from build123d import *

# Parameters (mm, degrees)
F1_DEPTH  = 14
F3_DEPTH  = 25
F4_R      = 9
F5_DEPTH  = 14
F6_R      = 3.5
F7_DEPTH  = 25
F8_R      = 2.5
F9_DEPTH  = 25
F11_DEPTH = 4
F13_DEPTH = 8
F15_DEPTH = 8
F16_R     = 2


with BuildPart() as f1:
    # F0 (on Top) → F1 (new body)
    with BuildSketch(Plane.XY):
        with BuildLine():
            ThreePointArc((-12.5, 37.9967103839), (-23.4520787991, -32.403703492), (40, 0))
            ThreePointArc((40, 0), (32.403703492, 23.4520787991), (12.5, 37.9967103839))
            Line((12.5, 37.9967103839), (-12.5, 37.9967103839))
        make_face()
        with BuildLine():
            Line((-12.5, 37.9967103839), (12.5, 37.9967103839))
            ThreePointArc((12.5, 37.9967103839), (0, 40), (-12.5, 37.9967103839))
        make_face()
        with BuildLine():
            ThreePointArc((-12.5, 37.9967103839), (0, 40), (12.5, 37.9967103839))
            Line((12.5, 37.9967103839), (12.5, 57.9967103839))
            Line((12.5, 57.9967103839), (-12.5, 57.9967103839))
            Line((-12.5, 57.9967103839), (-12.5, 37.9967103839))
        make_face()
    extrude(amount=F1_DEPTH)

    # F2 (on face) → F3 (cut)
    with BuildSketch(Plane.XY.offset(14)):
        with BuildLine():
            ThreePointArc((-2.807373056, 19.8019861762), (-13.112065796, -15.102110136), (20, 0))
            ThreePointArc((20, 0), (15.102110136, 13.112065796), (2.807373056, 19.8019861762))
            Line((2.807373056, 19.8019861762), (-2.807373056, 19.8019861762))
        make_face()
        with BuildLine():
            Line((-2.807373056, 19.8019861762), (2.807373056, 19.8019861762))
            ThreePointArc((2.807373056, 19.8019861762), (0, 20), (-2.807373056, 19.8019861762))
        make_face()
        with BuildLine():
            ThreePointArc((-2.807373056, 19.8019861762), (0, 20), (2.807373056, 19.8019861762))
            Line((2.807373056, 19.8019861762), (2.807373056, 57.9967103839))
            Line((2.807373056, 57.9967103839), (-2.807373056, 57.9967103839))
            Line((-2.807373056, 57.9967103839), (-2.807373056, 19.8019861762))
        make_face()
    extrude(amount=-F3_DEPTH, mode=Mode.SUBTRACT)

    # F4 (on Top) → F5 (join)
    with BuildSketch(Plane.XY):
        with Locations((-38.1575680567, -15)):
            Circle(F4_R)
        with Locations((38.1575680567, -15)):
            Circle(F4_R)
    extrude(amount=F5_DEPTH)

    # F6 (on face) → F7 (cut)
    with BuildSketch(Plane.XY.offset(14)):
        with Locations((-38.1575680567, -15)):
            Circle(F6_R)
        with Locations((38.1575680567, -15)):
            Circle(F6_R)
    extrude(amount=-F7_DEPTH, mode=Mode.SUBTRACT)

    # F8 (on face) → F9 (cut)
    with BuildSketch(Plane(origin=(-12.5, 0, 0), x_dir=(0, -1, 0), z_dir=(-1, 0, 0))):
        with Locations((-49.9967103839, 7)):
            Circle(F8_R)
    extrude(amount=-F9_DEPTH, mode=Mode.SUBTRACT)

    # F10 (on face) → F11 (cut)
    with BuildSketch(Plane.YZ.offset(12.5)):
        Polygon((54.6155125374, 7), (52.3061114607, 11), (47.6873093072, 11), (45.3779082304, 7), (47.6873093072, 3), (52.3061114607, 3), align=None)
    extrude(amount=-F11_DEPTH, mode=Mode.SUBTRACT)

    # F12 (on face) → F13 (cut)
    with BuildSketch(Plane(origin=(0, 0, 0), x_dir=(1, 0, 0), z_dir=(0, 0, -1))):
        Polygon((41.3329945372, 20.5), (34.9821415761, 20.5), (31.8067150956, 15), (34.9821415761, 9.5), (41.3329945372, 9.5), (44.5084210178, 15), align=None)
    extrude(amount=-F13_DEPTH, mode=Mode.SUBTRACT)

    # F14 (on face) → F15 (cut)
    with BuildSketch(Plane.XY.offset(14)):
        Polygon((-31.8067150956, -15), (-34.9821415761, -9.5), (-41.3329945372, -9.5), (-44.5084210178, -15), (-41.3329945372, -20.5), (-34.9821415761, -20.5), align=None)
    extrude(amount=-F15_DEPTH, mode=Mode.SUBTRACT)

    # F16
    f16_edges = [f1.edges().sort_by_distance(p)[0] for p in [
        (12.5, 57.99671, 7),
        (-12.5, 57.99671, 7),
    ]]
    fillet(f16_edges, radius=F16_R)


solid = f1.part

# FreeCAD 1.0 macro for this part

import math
import FreeCAD as App
import Part
import Sketcher
from FreeCAD import Vector
Q = App.Units.Quantity


def edges_at(feature, points):
    """Names of the edges that pass closest to the given points."""
    edges = feature.Shape.Edges
    near = lambda p: min(range(len(edges)), key=lambda i: edges[i].distToShape(Part.Vertex(*p))[0])
    return sorted({f"Edge{near(p) + 1}" for p in points})

doc = App.newDocument("Part")
body = doc.addObject("PartDesign::Body", "Body")

sketch1 = doc.addObject("Sketcher::SketchObject", "Sketch")
body.addObject(sketch1)
sketch1.AttachmentSupport = (doc.XY_Plane, [""])
sketch1.MapMode = "FlatFace"
sketch1.addGeometry(Part.ArcOfCircle(Part.Circle(Vector(0, 0, 0), Vector(0, 0, 1), 40), math.radians(108.209957), math.radians(360)), False)
sketch1.addGeometry(Part.ArcOfCircle(Part.Circle(Vector(0, 0, 0), Vector(0, 0, 1), 40), math.radians(0), math.radians(71.790043)), False)
sketch1.addGeometry(Part.LineSegment(Vector(12.5, 37.99671, 0), Vector(12.5, 57.99671, 0)), False)
sketch1.addGeometry(Part.LineSegment(Vector(12.5, 57.99671, 0), Vector(-12.5, 57.99671, 0)), False)
sketch1.addGeometry(Part.LineSegment(Vector(-12.5, 57.99671, 0), Vector(-12.5, 37.99671, 0)), False)
sketch1.addConstraint(Sketcher.Constraint("Tangent", 0, 2, 1, 1))
sketch1.addConstraint(Sketcher.Constraint("Coincident", 1, 2, 2, 1))
sketch1.addConstraint(Sketcher.Constraint("Coincident", 2, 2, 3, 1))
sketch1.addConstraint(Sketcher.Constraint("Coincident", 3, 2, 4, 1))
sketch1.addConstraint(Sketcher.Constraint("Coincident", 4, 2, 0, 1))
sketch1.addConstraint(Sketcher.Constraint("Vertical", 2))
sketch1.addConstraint(Sketcher.Constraint("Horizontal", 3))
sketch1.addConstraint(Sketcher.Constraint("Vertical", 4))
sketch1.addConstraint(Sketcher.Constraint("Coincident", 0, 3, -1, 1))
sketch1.addConstraint(Sketcher.Constraint("Equal", 0, 1))
sketch1.addConstraint(Sketcher.Constraint("PointOnObject", 0, 2, -1))
sketch1.addConstraint(Sketcher.Constraint("Horizontal", 1, 2, 4, 2))
sketch1.addConstraint(Sketcher.Constraint("Radius", 0, Q("40 mm")))
sketch1.addConstraint(Sketcher.Constraint("DistanceX", 3, 2, 3, 1, Q("25 mm")))
sketch1.addConstraint(Sketcher.Constraint("DistanceY", 2, 1, 2, 2, Q("20 mm")))
pad1 = doc.addObject("PartDesign::Pad", "Pad")
body.addObject(pad1)
pad1.Profile = sketch1
pad1.Length = 14

sketch2 = doc.addObject("Sketcher::SketchObject", "Sketch001")
body.addObject(sketch2)
sketch2.AttachmentSupport = (doc.XY_Plane, [""])
sketch2.MapMode = "FlatFace"
sketch2.AttachmentOffset = App.Placement(Vector(0, 0, 14), App.Rotation())
sketch2.addGeometry(Part.ArcOfCircle(Part.Circle(Vector(0, 0, 0), Vector(0, 0, 1), 20), math.radians(98.069179), math.radians(360)), False)
sketch2.addGeometry(Part.ArcOfCircle(Part.Circle(Vector(0, 0, 0), Vector(0, 0, 1), 20), math.radians(0), math.radians(81.930821)), False)
sketch2.addGeometry(Part.LineSegment(Vector(2.807373, 19.801986, 0), Vector(2.807373, 57.99671, 0)), False)
sketch2.addGeometry(Part.LineSegment(Vector(2.807373, 57.99671, 0), Vector(-2.807373, 57.99671, 0)), False)
sketch2.addGeometry(Part.LineSegment(Vector(-2.807373, 57.99671, 0), Vector(-2.807373, 19.801986, 0)), False)
sketch2.addConstraint(Sketcher.Constraint("Tangent", 0, 2, 1, 1))
sketch2.addConstraint(Sketcher.Constraint("Coincident", 1, 2, 2, 1))
sketch2.addConstraint(Sketcher.Constraint("Coincident", 2, 2, 3, 1))
sketch2.addConstraint(Sketcher.Constraint("Coincident", 3, 2, 4, 1))
sketch2.addConstraint(Sketcher.Constraint("Coincident", 4, 2, 0, 1))
sketch2.addConstraint(Sketcher.Constraint("Vertical", 2))
sketch2.addConstraint(Sketcher.Constraint("Horizontal", 3))
sketch2.addConstraint(Sketcher.Constraint("Vertical", 4))
sketch2.addConstraint(Sketcher.Constraint("Coincident", 0, 3, -1, 1))
sketch2.addConstraint(Sketcher.Constraint("Equal", 0, 1))
sketch2.addConstraint(Sketcher.Constraint("PointOnObject", 0, 2, -1))
sketch2.addConstraint(Sketcher.Constraint("Horizontal", 1, 2, 4, 2))
sketch2.addConstraint(Sketcher.Constraint("Radius", 0, Q("20 mm")))
sketch2.addConstraint(Sketcher.Constraint("DistanceX", 3, 2, 3, 1, Q("5.614746 mm")))
sketch2.addConstraint(Sketcher.Constraint("DistanceY", 2, 1, 2, 2, Q("38.194724 mm")))
pocket1 = doc.addObject("PartDesign::Pocket", "Pocket")
body.addObject(pocket1)
pocket1.Profile = sketch2
pocket1.Length = 25

sketch3 = doc.addObject("Sketcher::SketchObject", "Sketch002")
body.addObject(sketch3)
sketch3.AttachmentSupport = (doc.XY_Plane, [""])
sketch3.MapMode = "FlatFace"
sketch3.addGeometry(Part.Circle(Vector(-38.157568, -15, 0), Vector(0, 0, 1), 9), False)
sketch3.addGeometry(Part.Circle(Vector(38.157568, -15, 0), Vector(0, 0, 1), 9), False)
sketch3.addConstraint(Sketcher.Constraint("Equal", 0, 1))
sketch3.addConstraint(Sketcher.Constraint("Symmetric", 0, 3, 1, 3, -2))
sketch3.addConstraint(Sketcher.Constraint("Diameter", 0, Q("18 mm")))
sketch3.addConstraint(Sketcher.Constraint("DistanceY", 0, 3, -1, 1, Q("15 mm")))
sketch3.addConstraint(Sketcher.Constraint("DistanceX", 0, 3, -1, 1, Q("38.157568 mm")))
pad2 = doc.addObject("PartDesign::Pad", "Pad001")
body.addObject(pad2)
pad2.Profile = sketch3
pad2.Length = 14

sketch4 = doc.addObject("Sketcher::SketchObject", "Sketch003")
body.addObject(sketch4)
sketch4.AttachmentSupport = (doc.XY_Plane, [""])
sketch4.MapMode = "FlatFace"
sketch4.AttachmentOffset = App.Placement(Vector(0, 0, 14), App.Rotation())
sketch4.addGeometry(Part.Circle(Vector(-38.157568, -15, 0), Vector(0, 0, 1), 3.5), False)
sketch4.addGeometry(Part.Circle(Vector(38.157568, -15, 0), Vector(0, 0, 1), 3.5), False)
sketch4.addConstraint(Sketcher.Constraint("Equal", 0, 1))
sketch4.addConstraint(Sketcher.Constraint("Symmetric", 0, 3, 1, 3, -2))
sketch4.addConstraint(Sketcher.Constraint("Diameter", 0, Q("7 mm")))
sketch4.addConstraint(Sketcher.Constraint("DistanceY", 0, 3, -1, 1, Q("15 mm")))
sketch4.addConstraint(Sketcher.Constraint("DistanceX", 0, 3, -1, 1, Q("38.157568 mm")))
pocket2 = doc.addObject("PartDesign::Pocket", "Pocket001")
body.addObject(pocket2)
pocket2.Profile = sketch4
pocket2.Length = 25

sketch5 = doc.addObject("Sketcher::SketchObject", "Sketch004")
body.addObject(sketch5)
sketch5.AttachmentSupport = (doc.YZ_Plane, [""])
sketch5.MapMode = "FlatFace"
sketch5.AttachmentOffset = App.Placement(Vector(0, 0, -12.5), App.Rotation())
sketch5.addGeometry(Part.Circle(Vector(49.99671, 7, 0), Vector(0, 0, 1), 2.5), False)
sketch5.addConstraint(Sketcher.Constraint("Diameter", 0, Q("5 mm")))
sketch5.addConstraint(Sketcher.Constraint("DistanceY", -1, 1, 0, 3, Q("7 mm")))
sketch5.addConstraint(Sketcher.Constraint("DistanceX", -1, 1, 0, 3, Q("49.99671 mm")))
pocket3 = doc.addObject("PartDesign::Pocket", "Pocket002")
body.addObject(pocket3)
pocket3.Profile = sketch5
pocket3.Length = 25
pocket3.Reversed = True

sketch6 = doc.addObject("Sketcher::SketchObject", "Sketch005")
body.addObject(sketch6)
sketch6.AttachmentSupport = (doc.YZ_Plane, [""])
sketch6.MapMode = "FlatFace"
sketch6.AttachmentOffset = App.Placement(Vector(0, 0, 12.5), App.Rotation())
sketch6.addGeometry(Part.LineSegment(Vector(54.615513, 7, 0), Vector(52.306111, 11, 0)), False)
sketch6.addGeometry(Part.LineSegment(Vector(52.306111, 11, 0), Vector(47.687309, 11, 0)), False)
sketch6.addGeometry(Part.LineSegment(Vector(47.687309, 11, 0), Vector(45.377908, 7, 0)), False)
sketch6.addGeometry(Part.LineSegment(Vector(45.377908, 7, 0), Vector(47.687309, 3, 0)), False)
sketch6.addGeometry(Part.LineSegment(Vector(47.687309, 3, 0), Vector(52.306111, 3, 0)), False)
sketch6.addGeometry(Part.LineSegment(Vector(52.306111, 3, 0), Vector(54.615513, 7, 0)), False)
sketch6.addConstraint(Sketcher.Constraint("Coincident", 0, 2, 1, 1))
sketch6.addConstraint(Sketcher.Constraint("Coincident", 1, 2, 2, 1))
sketch6.addConstraint(Sketcher.Constraint("Coincident", 2, 2, 3, 1))
sketch6.addConstraint(Sketcher.Constraint("Coincident", 3, 2, 4, 1))
sketch6.addConstraint(Sketcher.Constraint("Coincident", 4, 2, 5, 1))
sketch6.addConstraint(Sketcher.Constraint("Coincident", 5, 2, 0, 1))
sketch6.addConstraint(Sketcher.Constraint("Horizontal", 1))
sketch6.addConstraint(Sketcher.Constraint("Horizontal", 4))
sketch6.addConstraint(Sketcher.Constraint("Parallel", 0, 3))
sketch6.addConstraint(Sketcher.Constraint("Parallel", 2, 5))
sketch6.addConstraint(Sketcher.Constraint("Horizontal", 2, 2, 5, 2))
sketch6.addConstraint(Sketcher.Constraint("Vertical", 1, 2, 3, 2))
sketch6.addConstraint(Sketcher.Constraint("Vertical", 0, 2, 4, 2))
sketch6.addConstraint(Sketcher.Constraint("Angle", 0, Q("120 deg")))
sketch6.addConstraint(Sketcher.Constraint("DistanceY", -1, 1, 0, 2, Q("11 mm")))
sketch6.addConstraint(Sketcher.Constraint("DistanceY", -1, 1, 2, 2, Q("7 mm")))
sketch6.addConstraint(Sketcher.Constraint("DistanceX", 1, 2, 1, 1, Q("4.618802 mm")))
sketch6.addConstraint(Sketcher.Constraint("DistanceX", -1, 1, 0, 2, Q("52.306111 mm")))
pocket4 = doc.addObject("PartDesign::Pocket", "Pocket003")
body.addObject(pocket4)
pocket4.Profile = sketch6
pocket4.Length = 4

sketch7 = doc.addObject("Sketcher::SketchObject", "Sketch006")
body.addObject(sketch7)
sketch7.AttachmentSupport = (doc.XY_Plane, [""])
sketch7.MapMode = "FlatFace"
sketch7.addGeometry(Part.LineSegment(Vector(41.332995, -20.5, 0), Vector(34.982142, -20.5, 0)), False)
sketch7.addGeometry(Part.LineSegment(Vector(34.982142, -20.5, 0), Vector(31.806715, -15, 0)), False)
sketch7.addGeometry(Part.LineSegment(Vector(31.806715, -15, 0), Vector(34.982142, -9.5, 0)), False)
sketch7.addGeometry(Part.LineSegment(Vector(34.982142, -9.5, 0), Vector(41.332995, -9.5, 0)), False)
sketch7.addGeometry(Part.LineSegment(Vector(41.332995, -9.5, 0), Vector(44.508421, -15, 0)), False)
sketch7.addGeometry(Part.LineSegment(Vector(44.508421, -15, 0), Vector(41.332995, -20.5, 0)), False)
sketch7.addConstraint(Sketcher.Constraint("Coincident", 0, 2, 1, 1))
sketch7.addConstraint(Sketcher.Constraint("Coincident", 1, 2, 2, 1))
sketch7.addConstraint(Sketcher.Constraint("Coincident", 2, 2, 3, 1))
sketch7.addConstraint(Sketcher.Constraint("Coincident", 3, 2, 4, 1))
sketch7.addConstraint(Sketcher.Constraint("Coincident", 4, 2, 5, 1))
sketch7.addConstraint(Sketcher.Constraint("Coincident", 5, 2, 0, 1))
sketch7.addConstraint(Sketcher.Constraint("Horizontal", 0))
sketch7.addConstraint(Sketcher.Constraint("Horizontal", 3))
sketch7.addConstraint(Sketcher.Constraint("Parallel", 1, 4))
sketch7.addConstraint(Sketcher.Constraint("Parallel", 2, 5))
sketch7.addConstraint(Sketcher.Constraint("Horizontal", 1, 2, 4, 2))
sketch7.addConstraint(Sketcher.Constraint("Vertical", 0, 2, 2, 2))
sketch7.addConstraint(Sketcher.Constraint("Vertical", 3, 2, 5, 2))
sketch7.addConstraint(Sketcher.Constraint("Angle", 1, Q("120 deg")))
sketch7.addConstraint(Sketcher.Constraint("DistanceY", 1, 2, -1, 1, Q("15 mm")))
sketch7.addConstraint(Sketcher.Constraint("DistanceY", 0, 2, 2, 2, Q("11 mm")))
sketch7.addConstraint(Sketcher.Constraint("DistanceX", 0, 2, 0, 1, Q("6.350853 mm")))
sketch7.addConstraint(Sketcher.Constraint("DistanceX", -1, 1, 0, 2, Q("34.982142 mm")))
pocket5 = doc.addObject("PartDesign::Pocket", "Pocket004")
body.addObject(pocket5)
pocket5.Profile = sketch7
pocket5.Length = 8
pocket5.Reversed = True

sketch8 = doc.addObject("Sketcher::SketchObject", "Sketch007")
body.addObject(sketch8)
sketch8.AttachmentSupport = (doc.XY_Plane, [""])
sketch8.MapMode = "FlatFace"
sketch8.AttachmentOffset = App.Placement(Vector(0, 0, 14), App.Rotation())
sketch8.addGeometry(Part.LineSegment(Vector(-31.806715, -15, 0), Vector(-34.982142, -9.5, 0)), False)
sketch8.addGeometry(Part.LineSegment(Vector(-34.982142, -9.5, 0), Vector(-41.332995, -9.5, 0)), False)
sketch8.addGeometry(Part.LineSegment(Vector(-41.332995, -9.5, 0), Vector(-44.508421, -15, 0)), False)
sketch8.addGeometry(Part.LineSegment(Vector(-44.508421, -15, 0), Vector(-41.332995, -20.5, 0)), False)
sketch8.addGeometry(Part.LineSegment(Vector(-41.332995, -20.5, 0), Vector(-34.982142, -20.5, 0)), False)
sketch8.addGeometry(Part.LineSegment(Vector(-34.982142, -20.5, 0), Vector(-31.806715, -15, 0)), False)
sketch8.addConstraint(Sketcher.Constraint("Coincident", 0, 2, 1, 1))
sketch8.addConstraint(Sketcher.Constraint("Coincident", 1, 2, 2, 1))
sketch8.addConstraint(Sketcher.Constraint("Coincident", 2, 2, 3, 1))
sketch8.addConstraint(Sketcher.Constraint("Coincident", 3, 2, 4, 1))
sketch8.addConstraint(Sketcher.Constraint("Coincident", 4, 2, 5, 1))
sketch8.addConstraint(Sketcher.Constraint("Coincident", 5, 2, 0, 1))
sketch8.addConstraint(Sketcher.Constraint("Horizontal", 1))
sketch8.addConstraint(Sketcher.Constraint("Horizontal", 4))
sketch8.addConstraint(Sketcher.Constraint("Parallel", 0, 3))
sketch8.addConstraint(Sketcher.Constraint("Parallel", 2, 5))
sketch8.addConstraint(Sketcher.Constraint("Horizontal", 2, 2, 5, 2))
sketch8.addConstraint(Sketcher.Constraint("Vertical", 1, 2, 3, 2))
sketch8.addConstraint(Sketcher.Constraint("Vertical", 0, 2, 4, 2))
sketch8.addConstraint(Sketcher.Constraint("Angle", 0, Q("120 deg")))
sketch8.addConstraint(Sketcher.Constraint("DistanceY", 2, 2, -1, 1, Q("15 mm")))
sketch8.addConstraint(Sketcher.Constraint("DistanceY", 3, 2, 1, 2, Q("11 mm")))
sketch8.addConstraint(Sketcher.Constraint("DistanceX", 1, 2, 1, 1, Q("6.350853 mm")))
sketch8.addConstraint(Sketcher.Constraint("DistanceX", 0, 2, -1, 1, Q("34.982142 mm")))
pocket6 = doc.addObject("PartDesign::Pocket", "Pocket005")
body.addObject(pocket6)
pocket6.Profile = sketch8
pocket6.Length = 8
doc.recompute()

fillet = doc.addObject("PartDesign::Fillet", "Fillet")
body.addObject(fillet)
fillet.Base = (pocket6, edges_at(pocket6, [(12.5, 57.997, 7), (-12.5, 57.997, 7)]))
fillet.Radius = 2

doc.recompute()
